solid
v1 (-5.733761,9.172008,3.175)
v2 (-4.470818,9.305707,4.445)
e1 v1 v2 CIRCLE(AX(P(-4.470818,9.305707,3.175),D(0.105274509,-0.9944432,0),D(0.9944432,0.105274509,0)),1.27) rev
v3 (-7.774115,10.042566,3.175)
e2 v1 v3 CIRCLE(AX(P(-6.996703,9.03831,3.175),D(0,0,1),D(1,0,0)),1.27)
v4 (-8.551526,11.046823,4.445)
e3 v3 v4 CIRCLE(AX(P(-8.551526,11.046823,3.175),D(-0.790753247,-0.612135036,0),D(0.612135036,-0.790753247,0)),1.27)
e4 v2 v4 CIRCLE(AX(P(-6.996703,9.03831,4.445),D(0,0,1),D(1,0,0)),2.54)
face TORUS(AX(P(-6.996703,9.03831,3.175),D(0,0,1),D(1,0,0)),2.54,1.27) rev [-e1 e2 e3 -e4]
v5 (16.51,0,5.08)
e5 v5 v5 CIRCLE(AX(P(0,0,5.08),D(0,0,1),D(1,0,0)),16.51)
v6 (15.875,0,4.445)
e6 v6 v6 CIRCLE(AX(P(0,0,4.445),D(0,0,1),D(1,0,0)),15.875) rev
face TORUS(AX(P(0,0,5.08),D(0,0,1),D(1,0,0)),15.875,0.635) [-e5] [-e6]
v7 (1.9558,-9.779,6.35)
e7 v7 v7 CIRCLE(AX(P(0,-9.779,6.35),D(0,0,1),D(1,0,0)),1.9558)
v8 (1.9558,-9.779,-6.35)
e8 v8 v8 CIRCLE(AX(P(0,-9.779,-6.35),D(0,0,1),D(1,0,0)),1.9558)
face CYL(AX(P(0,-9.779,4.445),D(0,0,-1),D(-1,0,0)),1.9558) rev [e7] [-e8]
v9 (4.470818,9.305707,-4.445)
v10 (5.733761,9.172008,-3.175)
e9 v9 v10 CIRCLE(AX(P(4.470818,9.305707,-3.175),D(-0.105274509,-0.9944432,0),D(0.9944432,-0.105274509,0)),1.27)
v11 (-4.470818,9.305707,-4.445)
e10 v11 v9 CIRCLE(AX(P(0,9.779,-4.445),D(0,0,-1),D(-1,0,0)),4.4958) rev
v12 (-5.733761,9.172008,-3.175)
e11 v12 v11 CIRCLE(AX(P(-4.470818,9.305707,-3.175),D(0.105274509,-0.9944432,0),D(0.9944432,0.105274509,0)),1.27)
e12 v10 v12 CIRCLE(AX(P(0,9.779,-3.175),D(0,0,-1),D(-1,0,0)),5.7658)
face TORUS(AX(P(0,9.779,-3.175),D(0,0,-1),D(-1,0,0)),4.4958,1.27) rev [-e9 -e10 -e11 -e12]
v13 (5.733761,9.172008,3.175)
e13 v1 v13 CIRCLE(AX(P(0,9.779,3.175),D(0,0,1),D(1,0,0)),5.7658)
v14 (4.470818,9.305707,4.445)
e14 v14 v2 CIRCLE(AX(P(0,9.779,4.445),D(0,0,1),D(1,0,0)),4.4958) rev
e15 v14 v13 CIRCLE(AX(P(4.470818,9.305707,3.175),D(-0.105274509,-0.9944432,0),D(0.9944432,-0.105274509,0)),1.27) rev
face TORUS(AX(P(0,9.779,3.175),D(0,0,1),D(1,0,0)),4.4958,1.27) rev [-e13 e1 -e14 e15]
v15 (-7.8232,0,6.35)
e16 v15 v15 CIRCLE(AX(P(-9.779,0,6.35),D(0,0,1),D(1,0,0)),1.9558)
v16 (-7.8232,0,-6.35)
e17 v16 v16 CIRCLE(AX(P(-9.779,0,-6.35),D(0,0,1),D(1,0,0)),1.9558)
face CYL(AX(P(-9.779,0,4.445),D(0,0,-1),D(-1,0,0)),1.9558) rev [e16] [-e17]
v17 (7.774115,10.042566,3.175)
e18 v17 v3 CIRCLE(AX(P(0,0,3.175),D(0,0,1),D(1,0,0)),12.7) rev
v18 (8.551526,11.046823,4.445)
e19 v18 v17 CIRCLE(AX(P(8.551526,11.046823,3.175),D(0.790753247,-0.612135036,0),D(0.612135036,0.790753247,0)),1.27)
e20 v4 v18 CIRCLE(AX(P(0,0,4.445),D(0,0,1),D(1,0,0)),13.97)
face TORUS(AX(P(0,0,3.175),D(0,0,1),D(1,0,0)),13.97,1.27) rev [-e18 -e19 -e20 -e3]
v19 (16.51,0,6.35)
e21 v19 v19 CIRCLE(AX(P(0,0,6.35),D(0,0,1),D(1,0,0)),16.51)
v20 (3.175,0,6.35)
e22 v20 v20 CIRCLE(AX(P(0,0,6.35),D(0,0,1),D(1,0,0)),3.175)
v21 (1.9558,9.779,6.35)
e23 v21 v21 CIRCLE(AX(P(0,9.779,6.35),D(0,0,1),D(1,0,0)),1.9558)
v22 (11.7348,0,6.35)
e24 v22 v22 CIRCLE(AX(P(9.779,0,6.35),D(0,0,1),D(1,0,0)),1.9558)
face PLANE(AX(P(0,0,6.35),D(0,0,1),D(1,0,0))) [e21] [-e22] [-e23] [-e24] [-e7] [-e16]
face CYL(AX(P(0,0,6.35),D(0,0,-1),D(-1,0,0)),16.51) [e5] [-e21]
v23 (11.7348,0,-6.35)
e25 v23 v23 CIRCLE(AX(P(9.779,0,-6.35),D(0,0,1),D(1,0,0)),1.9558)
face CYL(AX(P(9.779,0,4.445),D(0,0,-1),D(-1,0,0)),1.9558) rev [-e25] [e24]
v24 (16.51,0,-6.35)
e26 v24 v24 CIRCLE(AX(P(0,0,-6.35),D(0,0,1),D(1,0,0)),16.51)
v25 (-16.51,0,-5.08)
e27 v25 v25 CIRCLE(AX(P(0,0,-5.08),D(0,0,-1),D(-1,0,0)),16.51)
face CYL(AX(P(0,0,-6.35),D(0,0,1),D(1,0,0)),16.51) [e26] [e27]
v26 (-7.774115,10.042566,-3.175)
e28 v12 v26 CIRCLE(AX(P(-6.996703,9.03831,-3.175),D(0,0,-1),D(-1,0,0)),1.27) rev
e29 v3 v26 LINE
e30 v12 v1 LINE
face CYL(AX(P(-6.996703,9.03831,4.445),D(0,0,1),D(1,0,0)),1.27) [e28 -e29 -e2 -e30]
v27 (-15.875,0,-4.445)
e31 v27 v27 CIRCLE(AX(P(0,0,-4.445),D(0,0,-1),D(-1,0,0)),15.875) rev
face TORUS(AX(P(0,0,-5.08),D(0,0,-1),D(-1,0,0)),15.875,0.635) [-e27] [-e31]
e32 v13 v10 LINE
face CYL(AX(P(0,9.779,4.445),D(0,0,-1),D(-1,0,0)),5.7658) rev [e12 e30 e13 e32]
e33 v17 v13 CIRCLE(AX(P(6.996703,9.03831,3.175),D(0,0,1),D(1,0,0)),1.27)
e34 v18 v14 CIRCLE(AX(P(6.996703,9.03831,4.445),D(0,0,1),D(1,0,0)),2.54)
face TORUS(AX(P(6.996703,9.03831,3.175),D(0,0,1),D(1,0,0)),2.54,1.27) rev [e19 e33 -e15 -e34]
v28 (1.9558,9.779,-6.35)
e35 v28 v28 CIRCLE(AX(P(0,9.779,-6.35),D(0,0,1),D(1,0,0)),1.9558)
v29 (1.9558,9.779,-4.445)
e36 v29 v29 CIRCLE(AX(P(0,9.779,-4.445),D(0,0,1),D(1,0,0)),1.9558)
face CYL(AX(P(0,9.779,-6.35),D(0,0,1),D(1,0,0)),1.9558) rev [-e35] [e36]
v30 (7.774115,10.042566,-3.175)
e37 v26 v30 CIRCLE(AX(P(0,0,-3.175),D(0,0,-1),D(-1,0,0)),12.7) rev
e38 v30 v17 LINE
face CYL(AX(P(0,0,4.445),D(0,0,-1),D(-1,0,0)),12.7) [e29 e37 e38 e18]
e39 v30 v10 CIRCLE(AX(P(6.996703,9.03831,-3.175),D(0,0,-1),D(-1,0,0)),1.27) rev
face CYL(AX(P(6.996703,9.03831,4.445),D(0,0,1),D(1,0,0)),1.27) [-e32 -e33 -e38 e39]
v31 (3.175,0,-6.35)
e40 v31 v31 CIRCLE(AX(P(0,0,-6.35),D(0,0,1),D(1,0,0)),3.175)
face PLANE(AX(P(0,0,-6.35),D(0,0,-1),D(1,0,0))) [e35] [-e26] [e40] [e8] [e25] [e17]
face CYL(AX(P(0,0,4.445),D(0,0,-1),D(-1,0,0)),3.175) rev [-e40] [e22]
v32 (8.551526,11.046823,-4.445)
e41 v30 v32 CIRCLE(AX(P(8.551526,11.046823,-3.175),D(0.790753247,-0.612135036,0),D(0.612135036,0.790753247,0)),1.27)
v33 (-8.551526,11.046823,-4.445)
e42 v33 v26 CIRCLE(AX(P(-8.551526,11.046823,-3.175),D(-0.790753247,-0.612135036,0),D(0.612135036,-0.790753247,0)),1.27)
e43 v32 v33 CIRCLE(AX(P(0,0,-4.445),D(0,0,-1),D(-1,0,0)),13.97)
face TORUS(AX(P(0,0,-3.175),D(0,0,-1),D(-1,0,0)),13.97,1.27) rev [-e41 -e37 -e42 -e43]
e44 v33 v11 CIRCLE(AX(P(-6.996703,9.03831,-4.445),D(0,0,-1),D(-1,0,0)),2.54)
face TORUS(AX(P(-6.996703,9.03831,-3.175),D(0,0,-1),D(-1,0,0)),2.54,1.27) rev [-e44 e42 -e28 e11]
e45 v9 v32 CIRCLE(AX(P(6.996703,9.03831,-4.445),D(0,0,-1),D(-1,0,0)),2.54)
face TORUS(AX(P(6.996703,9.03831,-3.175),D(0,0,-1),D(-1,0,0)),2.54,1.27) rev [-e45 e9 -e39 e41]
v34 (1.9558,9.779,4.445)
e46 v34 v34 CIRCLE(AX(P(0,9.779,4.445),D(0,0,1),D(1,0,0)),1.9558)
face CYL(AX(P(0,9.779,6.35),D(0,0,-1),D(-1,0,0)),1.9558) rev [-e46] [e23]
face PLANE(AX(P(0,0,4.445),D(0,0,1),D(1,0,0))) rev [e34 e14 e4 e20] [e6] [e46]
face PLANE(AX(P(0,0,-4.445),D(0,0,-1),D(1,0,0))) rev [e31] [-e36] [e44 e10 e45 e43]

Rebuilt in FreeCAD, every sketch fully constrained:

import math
import FreeCAD as App
import Part
import Sketcher

V = App.Vector
Q = App.Units.Quantity


def edges_at(feature, points):
    """Names of the edges that pass closest to the given points."""
    edges = feature.Shape.Edges
    near = lambda p: min(range(len(edges)), key=lambda i: edges[i].distToShape(Part.Vertex(*p))[0])
    return sorted({f"Edge{near(p) + 1}" for p in points})

doc = App.newDocument("Part")
body = doc.addObject("PartDesign::Body", "Body")

sketch1 = body.newObject("Sketcher::SketchObject", "Sketch")
sketch1.AttachmentSupport = (doc.getObject("XY_Plane"), [""])
sketch1.MapMode = "FlatFace"
sketch1.addGeometry([
    Part.ArcOfCircle(Part.Circle(V(0, 0, 0), V(0, 0, 1), 12.7), math.radians(115.774934), math.radians(360)),
    Part.ArcOfCircle(Part.Circle(V(0, 0, 0), V(0, 0, 1), 12.7), math.radians(0), math.radians(64.225066)),
    Part.ArcOfCircle(Part.Circle(V(0, 9.779, 0), V(0, 0, 1), 5.7658), math.radians(163.293753), math.radians(376.706247)),
    Part.Circle(V(0, -9.779, 0), V(0, 0, 1), 1.9558),
    Part.Circle(V(-9.779, 0, 0), V(0, 0, 1), 1.9558),
    Part.Circle(V(0, 0, 0), V(0, 0, 1), 3.175),
    Part.Circle(V(9.779, 0, 0), V(0, 0, 1), 1.9558),
], False)
sketch1.addConstraint([
    Sketcher.Constraint("Tangent", 0, 2, 1, 1),
    Sketcher.Constraint("Coincident", 1, 2, 2, 2),
    Sketcher.Constraint("Coincident", 2, 1, 0, 1),
    Sketcher.Constraint("Coincident", 0, 3, -1, 1),
    Sketcher.Constraint("Coincident", 5, 3, -1, 1),
    Sketcher.Constraint("Equal", 0, 1),
    Sketcher.Constraint("Equal", 3, 4),
    Sketcher.Constraint("Equal", 4, 6),
    Sketcher.Constraint("Symmetric", 2, 3, 3, 3, -1, 1),
    Sketcher.Constraint("Symmetric", 4, 3, 6, 3, -1, 1),
    Sketcher.Constraint("PointOnObject", 2, 3, -2),
    Sketcher.Constraint("PointOnObject", 4, 3, -1),
    Sketcher.Constraint("PointOnObject", 0, 2, -1),
    Sketcher.Constraint("Radius", 0, Q("0.5 in")),
    Sketcher.Constraint("Diameter", 5, Q("0.25 in")),
    Sketcher.Constraint("Diameter", 3, Q("0.154 in")),
    Sketcher.Constraint("Radius", 2, Q("0.227 in")),
    Sketcher.Constraint("DistanceY", 3, 3, 2, 3, Q("0.77 in")),
    Sketcher.Constraint("DistanceX", 4, 3, -1, 1, Q("0.385 in")),
])
pad1 = body.newObject("PartDesign::Pad", "Pad")
pad1.Profile = sketch1
pad1.Length = Q("0.35 in")
pad1.Midplane = True

sketch2 = body.newObject("Sketcher::SketchObject", "Sketch001")
sketch2.AttachmentSupport = (doc.getObject("XY_Plane"), [""])
sketch2.MapMode = "FlatFace"
sketch2.AttachmentOffset = App.Placement(V(0, 0, 0.175 * 25.4), App.Rotation())
sketch2.addGeometry([
    Part.Circle(V(0, 0, 0), V(0, 0, 1), 16.51),
    Part.Circle(V(0, -9.779, 0), V(0, 0, 1), 1.9558),
    Part.Circle(V(-9.779, 0, 0), V(0, 0, 1), 1.9558),
    Part.Circle(V(0, 0, 0), V(0, 0, 1), 3.175),
    Part.Circle(V(9.779, 0, 0), V(0, 0, 1), 1.9558),
    Part.Circle(V(0, 9.779, 0), V(0, 0, 1), 1.9558),
], False)
sketch2.addConstraint([
    Sketcher.Constraint("Coincident", 0, 3, -1, 1),
    Sketcher.Constraint("Coincident", 3, 3, -1, 1),
    Sketcher.Constraint("Equal", 1, 2),
    Sketcher.Constraint("Equal", 2, 4),
    Sketcher.Constraint("Equal", 4, 5),
    Sketcher.Constraint("Symmetric", 2, 3, 4, 3, -1, 1),
    Sketcher.Constraint("Symmetric", 1, 3, 5, 3, -1, 1),
    Sketcher.Constraint("PointOnObject", 1, 3, -2),
    Sketcher.Constraint("PointOnObject", 2, 3, -1),
    Sketcher.Constraint("Diameter", 0, Q("1.3 in")),
    Sketcher.Constraint("Diameter", 3, Q("0.25 in")),
    Sketcher.Constraint("Diameter", 1, Q("0.154 in")),
    Sketcher.Constraint("DistanceX", 2, 3, 4, 3, Q("0.77 in")),
    Sketcher.Constraint("DistanceY", 1, 3, 5, 3, Q("0.77 in")),
])
pad2 = body.newObject("PartDesign::Pad", "Pad001")
pad2.Profile = sketch2
pad2.Length = Q("0.075 in")
doc.recompute()

mirrored = body.newObject("PartDesign::Mirrored", "Mirrored")
mirrored.Originals = [pad2]
mirrored.MirrorPlane = (doc.getObject("XY_Plane"), [""])
body.Tip = mirrored
doc.recompute()

fillet = body.newObject("PartDesign::Fillet", "Fillet")
fillet.Base = (mirrored, edges_at(mirrored, [
    (-6.751, -10.757, -4.445),
    (0, 4.013, -4.445),
    (5.522, 11.436, 0),
    (-5.522, 11.436, 0),
    (0, 4.013, 4.445),
    (-6.751, -10.757, 4.445),
]))
fillet.Radius = Q("0.05 in")
doc.recompute()

fillet2 = body.newObject("PartDesign::Fillet", "Fillet001")
fillet2.Base = (fillet, edges_at(fillet, [(-16.51, 0, 4.445), (-16.51, 0, -4.445)]))
fillet2.Radius = Q("0.025 in")

doc.recompute()
